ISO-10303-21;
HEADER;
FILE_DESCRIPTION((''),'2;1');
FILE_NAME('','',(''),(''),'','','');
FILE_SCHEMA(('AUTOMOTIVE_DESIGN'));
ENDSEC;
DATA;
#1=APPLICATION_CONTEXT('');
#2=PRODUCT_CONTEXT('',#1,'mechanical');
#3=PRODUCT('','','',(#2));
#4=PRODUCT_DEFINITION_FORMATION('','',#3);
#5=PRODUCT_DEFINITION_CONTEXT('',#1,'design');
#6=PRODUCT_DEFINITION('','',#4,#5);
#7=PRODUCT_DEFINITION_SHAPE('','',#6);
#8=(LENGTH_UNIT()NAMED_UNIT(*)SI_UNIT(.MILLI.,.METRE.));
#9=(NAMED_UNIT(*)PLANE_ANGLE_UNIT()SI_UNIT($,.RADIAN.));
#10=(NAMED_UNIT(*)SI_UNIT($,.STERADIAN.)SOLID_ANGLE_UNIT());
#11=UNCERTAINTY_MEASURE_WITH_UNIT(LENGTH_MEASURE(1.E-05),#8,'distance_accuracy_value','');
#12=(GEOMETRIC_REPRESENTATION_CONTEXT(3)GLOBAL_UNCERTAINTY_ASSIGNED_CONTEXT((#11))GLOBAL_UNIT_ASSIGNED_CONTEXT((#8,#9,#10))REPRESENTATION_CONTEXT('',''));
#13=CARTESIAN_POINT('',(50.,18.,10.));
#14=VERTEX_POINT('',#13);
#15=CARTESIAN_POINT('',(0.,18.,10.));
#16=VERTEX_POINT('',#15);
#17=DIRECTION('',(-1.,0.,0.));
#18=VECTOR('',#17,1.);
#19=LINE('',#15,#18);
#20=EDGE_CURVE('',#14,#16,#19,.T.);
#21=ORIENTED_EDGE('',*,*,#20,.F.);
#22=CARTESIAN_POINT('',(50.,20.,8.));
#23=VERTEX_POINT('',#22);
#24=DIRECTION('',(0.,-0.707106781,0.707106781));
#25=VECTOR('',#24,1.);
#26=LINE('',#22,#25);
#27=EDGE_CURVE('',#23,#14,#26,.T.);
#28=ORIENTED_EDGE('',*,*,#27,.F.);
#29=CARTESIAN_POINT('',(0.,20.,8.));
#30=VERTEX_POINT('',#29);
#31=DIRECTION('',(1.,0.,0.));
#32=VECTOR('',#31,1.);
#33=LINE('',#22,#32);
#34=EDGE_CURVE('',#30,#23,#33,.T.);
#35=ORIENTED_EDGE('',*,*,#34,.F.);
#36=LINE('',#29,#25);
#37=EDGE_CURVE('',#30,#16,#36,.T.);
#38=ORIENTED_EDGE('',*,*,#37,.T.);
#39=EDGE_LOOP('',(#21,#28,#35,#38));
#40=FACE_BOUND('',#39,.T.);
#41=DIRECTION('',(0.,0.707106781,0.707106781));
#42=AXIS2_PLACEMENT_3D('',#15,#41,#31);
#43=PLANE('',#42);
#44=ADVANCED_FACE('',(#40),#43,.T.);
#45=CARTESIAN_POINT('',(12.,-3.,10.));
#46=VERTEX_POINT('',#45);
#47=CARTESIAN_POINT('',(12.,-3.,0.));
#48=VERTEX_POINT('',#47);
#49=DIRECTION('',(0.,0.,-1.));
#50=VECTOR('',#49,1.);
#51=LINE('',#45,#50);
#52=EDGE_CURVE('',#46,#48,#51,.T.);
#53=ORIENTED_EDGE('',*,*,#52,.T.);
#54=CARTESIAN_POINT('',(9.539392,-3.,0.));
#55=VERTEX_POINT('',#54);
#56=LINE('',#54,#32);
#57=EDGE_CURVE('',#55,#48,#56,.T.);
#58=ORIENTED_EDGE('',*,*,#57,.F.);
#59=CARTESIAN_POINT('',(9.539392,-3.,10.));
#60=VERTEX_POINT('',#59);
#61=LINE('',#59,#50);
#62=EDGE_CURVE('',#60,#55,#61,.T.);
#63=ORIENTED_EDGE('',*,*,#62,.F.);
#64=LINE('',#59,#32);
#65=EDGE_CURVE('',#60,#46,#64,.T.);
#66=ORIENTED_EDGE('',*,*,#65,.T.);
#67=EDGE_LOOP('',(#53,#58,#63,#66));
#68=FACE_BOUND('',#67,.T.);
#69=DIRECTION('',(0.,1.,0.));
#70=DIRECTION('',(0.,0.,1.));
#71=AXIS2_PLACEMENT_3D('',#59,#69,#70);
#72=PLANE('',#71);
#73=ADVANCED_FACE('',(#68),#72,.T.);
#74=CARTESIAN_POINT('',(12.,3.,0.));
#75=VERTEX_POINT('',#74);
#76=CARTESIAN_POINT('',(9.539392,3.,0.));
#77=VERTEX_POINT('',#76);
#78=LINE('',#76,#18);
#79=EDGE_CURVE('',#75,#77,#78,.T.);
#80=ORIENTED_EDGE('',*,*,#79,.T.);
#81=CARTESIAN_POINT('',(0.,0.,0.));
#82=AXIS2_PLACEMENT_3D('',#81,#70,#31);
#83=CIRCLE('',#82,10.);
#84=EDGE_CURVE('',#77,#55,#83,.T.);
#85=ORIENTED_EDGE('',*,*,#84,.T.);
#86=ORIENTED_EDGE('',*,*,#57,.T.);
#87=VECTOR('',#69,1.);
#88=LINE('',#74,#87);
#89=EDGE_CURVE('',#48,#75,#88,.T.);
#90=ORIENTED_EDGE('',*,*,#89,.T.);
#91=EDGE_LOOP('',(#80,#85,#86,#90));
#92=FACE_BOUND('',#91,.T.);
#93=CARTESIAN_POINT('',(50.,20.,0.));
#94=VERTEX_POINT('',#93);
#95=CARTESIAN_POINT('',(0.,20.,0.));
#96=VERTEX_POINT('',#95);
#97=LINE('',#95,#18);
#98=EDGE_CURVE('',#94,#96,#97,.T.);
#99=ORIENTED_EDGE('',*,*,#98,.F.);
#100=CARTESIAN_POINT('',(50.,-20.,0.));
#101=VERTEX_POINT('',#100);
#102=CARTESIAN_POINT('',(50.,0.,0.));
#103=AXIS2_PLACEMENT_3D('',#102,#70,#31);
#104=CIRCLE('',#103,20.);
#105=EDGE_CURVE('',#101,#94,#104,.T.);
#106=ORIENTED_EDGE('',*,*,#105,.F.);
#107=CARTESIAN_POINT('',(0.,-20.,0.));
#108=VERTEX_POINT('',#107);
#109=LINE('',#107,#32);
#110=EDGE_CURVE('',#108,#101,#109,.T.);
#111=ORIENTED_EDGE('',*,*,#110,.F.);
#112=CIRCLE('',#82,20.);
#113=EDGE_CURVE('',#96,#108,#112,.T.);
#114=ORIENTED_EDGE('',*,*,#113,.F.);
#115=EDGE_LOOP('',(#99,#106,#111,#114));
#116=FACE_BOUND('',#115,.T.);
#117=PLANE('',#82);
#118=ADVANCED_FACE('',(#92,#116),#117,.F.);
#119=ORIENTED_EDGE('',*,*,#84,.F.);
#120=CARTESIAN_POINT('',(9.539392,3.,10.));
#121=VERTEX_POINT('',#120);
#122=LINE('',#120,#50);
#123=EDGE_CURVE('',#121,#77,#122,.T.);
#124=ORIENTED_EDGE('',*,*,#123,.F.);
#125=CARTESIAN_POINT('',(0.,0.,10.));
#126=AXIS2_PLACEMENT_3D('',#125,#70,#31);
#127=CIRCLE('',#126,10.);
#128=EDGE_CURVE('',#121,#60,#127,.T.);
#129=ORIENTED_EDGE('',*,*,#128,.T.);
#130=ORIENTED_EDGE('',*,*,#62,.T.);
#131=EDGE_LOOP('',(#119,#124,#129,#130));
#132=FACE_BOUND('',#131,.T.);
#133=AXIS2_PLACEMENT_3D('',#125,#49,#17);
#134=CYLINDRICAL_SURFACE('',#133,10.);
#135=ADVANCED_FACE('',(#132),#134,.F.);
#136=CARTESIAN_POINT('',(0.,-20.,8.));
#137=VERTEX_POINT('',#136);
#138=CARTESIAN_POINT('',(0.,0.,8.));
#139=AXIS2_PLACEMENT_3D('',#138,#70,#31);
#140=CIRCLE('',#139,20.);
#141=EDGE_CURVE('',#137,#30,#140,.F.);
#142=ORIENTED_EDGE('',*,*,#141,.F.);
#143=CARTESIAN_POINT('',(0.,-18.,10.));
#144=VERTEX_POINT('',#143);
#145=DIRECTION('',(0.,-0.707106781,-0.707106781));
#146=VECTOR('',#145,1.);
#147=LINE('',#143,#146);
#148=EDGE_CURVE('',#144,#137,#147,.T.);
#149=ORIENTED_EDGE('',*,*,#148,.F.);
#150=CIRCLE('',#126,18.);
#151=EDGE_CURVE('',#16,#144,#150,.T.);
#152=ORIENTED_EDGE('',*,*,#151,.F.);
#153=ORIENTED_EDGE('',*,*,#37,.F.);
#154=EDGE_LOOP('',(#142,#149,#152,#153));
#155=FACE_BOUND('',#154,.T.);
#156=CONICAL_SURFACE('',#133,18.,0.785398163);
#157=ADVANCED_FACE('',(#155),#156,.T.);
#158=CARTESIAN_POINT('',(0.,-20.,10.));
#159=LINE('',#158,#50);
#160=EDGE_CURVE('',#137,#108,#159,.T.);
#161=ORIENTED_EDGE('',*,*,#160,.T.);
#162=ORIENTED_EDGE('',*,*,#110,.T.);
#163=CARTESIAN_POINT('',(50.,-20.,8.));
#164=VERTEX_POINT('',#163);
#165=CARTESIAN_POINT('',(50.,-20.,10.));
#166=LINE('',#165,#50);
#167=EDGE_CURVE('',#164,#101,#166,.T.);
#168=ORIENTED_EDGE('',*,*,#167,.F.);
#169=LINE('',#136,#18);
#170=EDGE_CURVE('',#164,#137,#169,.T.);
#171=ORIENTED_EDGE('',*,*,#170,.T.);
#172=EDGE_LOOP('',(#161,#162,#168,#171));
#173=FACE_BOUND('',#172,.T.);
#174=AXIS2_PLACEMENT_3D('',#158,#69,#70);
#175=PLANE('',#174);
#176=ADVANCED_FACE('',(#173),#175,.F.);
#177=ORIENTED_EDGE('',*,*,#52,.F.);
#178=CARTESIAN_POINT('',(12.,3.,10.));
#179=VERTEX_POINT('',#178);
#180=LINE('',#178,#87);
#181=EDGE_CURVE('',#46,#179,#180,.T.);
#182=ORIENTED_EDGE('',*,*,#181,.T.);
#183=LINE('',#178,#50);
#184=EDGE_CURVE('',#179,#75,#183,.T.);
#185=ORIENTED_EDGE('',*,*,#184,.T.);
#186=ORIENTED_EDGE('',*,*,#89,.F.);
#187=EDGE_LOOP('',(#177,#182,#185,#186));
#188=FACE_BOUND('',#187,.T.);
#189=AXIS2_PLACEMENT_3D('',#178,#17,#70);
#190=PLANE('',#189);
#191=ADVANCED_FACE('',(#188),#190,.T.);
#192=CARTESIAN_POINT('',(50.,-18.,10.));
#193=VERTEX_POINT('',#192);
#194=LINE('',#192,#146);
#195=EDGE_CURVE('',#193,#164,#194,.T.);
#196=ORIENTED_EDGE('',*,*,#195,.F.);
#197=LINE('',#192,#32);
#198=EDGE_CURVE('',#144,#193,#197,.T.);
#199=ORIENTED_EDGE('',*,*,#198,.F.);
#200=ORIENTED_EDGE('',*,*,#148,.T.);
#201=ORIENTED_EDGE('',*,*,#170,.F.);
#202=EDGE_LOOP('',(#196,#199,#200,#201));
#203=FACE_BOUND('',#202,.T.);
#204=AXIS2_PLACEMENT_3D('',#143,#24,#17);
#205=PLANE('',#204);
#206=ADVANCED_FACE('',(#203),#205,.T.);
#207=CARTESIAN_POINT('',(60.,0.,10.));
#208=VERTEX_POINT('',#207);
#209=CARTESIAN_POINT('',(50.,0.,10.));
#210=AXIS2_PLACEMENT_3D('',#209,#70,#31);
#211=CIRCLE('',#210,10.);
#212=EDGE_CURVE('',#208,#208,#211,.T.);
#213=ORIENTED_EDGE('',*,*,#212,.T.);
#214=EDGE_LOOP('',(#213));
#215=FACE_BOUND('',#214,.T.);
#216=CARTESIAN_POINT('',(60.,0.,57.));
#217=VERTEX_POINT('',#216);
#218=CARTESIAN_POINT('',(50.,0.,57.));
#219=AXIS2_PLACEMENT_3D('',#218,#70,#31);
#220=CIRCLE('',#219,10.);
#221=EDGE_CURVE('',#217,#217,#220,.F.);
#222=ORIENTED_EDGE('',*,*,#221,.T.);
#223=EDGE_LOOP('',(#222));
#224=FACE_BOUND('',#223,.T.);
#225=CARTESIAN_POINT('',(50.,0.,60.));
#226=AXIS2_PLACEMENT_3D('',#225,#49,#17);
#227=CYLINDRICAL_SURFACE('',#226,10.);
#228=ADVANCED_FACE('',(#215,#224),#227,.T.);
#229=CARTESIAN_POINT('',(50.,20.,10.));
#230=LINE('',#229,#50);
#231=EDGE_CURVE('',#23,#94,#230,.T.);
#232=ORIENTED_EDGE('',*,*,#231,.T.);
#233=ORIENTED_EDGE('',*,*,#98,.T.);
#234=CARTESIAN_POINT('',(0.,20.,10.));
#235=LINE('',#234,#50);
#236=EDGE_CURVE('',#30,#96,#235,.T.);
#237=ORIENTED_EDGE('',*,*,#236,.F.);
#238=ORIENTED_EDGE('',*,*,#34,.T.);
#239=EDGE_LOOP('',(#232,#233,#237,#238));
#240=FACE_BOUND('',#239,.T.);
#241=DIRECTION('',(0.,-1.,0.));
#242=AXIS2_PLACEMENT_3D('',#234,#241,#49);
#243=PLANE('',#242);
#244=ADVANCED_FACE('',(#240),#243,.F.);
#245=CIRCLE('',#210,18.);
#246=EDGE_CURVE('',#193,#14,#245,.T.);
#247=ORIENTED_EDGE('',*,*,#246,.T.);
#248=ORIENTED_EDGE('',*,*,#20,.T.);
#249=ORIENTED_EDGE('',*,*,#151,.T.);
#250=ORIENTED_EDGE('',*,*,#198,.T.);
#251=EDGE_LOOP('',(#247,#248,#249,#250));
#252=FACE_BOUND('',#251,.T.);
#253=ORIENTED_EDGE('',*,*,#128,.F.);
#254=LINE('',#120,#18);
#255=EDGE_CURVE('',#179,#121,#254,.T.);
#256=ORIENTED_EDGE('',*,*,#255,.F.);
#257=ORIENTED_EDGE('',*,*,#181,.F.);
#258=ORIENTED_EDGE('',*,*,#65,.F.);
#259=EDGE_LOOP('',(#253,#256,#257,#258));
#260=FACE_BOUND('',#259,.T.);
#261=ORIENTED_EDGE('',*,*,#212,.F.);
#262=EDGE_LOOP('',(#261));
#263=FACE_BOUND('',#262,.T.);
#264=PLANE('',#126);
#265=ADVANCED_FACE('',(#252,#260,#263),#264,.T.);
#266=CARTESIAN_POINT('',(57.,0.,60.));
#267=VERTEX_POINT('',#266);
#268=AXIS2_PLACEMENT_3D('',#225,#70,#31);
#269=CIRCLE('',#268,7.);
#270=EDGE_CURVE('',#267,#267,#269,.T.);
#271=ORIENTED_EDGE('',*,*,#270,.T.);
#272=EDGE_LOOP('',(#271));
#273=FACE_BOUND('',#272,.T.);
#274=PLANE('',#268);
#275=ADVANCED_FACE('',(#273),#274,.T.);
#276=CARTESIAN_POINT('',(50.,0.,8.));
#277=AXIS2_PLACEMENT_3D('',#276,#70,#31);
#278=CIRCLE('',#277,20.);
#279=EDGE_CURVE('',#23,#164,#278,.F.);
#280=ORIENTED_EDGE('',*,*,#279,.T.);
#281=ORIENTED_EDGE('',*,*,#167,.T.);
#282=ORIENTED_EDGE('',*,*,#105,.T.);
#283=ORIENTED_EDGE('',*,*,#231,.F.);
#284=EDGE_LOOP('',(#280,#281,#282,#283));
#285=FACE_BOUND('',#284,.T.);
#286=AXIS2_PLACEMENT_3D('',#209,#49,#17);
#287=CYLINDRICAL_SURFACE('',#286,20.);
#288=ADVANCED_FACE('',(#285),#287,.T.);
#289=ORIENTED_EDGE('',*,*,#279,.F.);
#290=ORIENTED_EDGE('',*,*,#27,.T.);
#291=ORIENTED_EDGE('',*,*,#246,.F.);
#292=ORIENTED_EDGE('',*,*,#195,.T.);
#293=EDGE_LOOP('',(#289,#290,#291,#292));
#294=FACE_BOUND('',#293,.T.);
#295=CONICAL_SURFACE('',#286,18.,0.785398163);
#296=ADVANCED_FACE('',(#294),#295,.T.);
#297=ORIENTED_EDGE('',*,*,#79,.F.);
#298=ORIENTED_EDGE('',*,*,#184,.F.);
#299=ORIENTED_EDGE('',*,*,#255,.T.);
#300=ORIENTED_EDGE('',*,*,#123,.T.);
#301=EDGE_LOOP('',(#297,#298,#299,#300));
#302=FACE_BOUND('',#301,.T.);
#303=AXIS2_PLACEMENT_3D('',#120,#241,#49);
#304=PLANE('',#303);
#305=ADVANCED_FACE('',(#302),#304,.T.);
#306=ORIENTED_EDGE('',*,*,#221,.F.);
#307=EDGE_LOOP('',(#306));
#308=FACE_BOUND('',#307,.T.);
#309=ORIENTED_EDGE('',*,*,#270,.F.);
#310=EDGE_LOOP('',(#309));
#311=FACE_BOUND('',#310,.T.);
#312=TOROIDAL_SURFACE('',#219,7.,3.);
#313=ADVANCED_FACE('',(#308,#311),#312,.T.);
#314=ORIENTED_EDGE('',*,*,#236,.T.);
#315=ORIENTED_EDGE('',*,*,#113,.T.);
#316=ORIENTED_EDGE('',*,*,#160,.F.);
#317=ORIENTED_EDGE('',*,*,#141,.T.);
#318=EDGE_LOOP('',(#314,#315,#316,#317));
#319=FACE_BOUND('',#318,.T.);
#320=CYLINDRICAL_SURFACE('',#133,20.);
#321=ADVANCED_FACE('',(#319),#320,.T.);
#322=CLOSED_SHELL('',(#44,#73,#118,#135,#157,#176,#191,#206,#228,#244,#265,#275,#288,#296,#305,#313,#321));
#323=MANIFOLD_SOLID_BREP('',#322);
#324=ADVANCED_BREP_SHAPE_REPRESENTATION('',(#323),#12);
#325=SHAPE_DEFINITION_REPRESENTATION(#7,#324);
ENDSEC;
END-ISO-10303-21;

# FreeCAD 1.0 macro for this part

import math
import FreeCAD as App
import Part
import Sketcher
Q = App.Units.Quantity


def edges_at(feature, points):
    """Names of the edges that pass closest to the given points."""
    edges = feature.Shape.Edges
    near = lambda p: min(range(len(edges)), key=lambda i: edges[i].distToShape(Part.Vertex(*p))[0])
    return sorted({f"Edge{near(p) + 1}" for p in points})

doc = App.newDocument("Part")
body = doc.addObject("PartDesign::Body", "Body")

sketch1 = body.newObject("Sketcher::SketchObject", "Sketch")
sketch1.AttachmentSupport = (doc.getObject("XY_Plane"), [""])
sketch1.MapMode = "FlatFace"
sketch1.addGeometry([
    Part.LineSegment(App.Vector(50, 20, 0), App.Vector(0, 20, 0)),
    Part.ArcOfCircle(Part.Circle(App.Vector(0, 0, 0), App.Vector(0, 0, 1), 20), math.radians(90), math.radians(270)),
    Part.LineSegment(App.Vector(0, -20, 0), App.Vector(50, -20, 0)),
    Part.ArcOfCircle(Part.Circle(App.Vector(50, 0, 0), App.Vector(0, 0, 1), 20), math.radians(-90), math.radians(90)),
    Part.LineSegment(App.Vector(9.5, 3, 0), App.Vector(12, 3, 0)),
    Part.LineSegment(App.Vector(12, 3, 0), App.Vector(12, -3, 0)),
    Part.LineSegment(App.Vector(12, -3, 0), App.Vector(9.5, -3, 0)),
    Part.ArcOfCircle(Part.Circle(App.Vector(0, 0, 0), App.Vector(0, 0, 1), 10), math.radians(17), math.radians(343)),
], False)
sketch1.addConstraint([
    Sketcher.Constraint("Tangent", 0, 2, 1, 1),
    Sketcher.Constraint("Tangent", 1, 2, 2, 1),
    Sketcher.Constraint("Tangent", 2, 2, 3, 1),
    Sketcher.Constraint("Tangent", 3, 2, 0, 1),
    Sketcher.Constraint("Coincident", 4, 2, 5, 1),
    Sketcher.Constraint("Coincident", 5, 2, 6, 1),
    Sketcher.Constraint("Coincident", 6, 2, 7, 2),
    Sketcher.Constraint("Coincident", 7, 1, 4, 1),
    Sketcher.Constraint("Horizontal", 0),
    Sketcher.Constraint("Horizontal", 2),
    Sketcher.Constraint("Horizontal", 4),
    Sketcher.Constraint("Vertical", 5),
    Sketcher.Constraint("Horizontal", 6),
    Sketcher.Constraint("Coincident", 1, 3, -1, 1),
    Sketcher.Constraint("Coincident", 7, 3, -1, 1),
    Sketcher.Constraint("Vertical", 6, 2, 7, 1),
    Sketcher.Constraint("Radius", 1, Q("20 mm")),
    Sketcher.Constraint("Radius", 7, Q("10 mm")),
    Sketcher.Constraint("DistanceX", 0, 2, 0, 1, Q("50 mm")),
    Sketcher.Constraint("DistanceY", 5, 2, 5, 1, Q("6 mm")),
    Sketcher.Constraint("DistanceX", -1, 1, 4, 2, Q("12 mm")),
])
pad1 = body.newObject("PartDesign::Pad", "Pad")
pad1.Profile = sketch1
pad1.Length = 10

sketch2 = body.newObject("Sketcher::SketchObject", "Sketch001")
sketch2.AttachmentSupport = (doc.getObject("XY_Plane"), [""])
sketch2.MapMode = "FlatFace"
sketch2.AttachmentOffset = App.Placement(App.Vector(0, 0, 10), App.Rotation())
sketch2.addGeometry(Part.Circle(App.Vector(50, 0, 0), App.Vector(0, 0, 1), 10), False)
sketch2.addConstraint([
    Sketcher.Constraint("PointOnObject", 0, 3, -1),
    Sketcher.Constraint("Diameter", 0, Q("20 mm")),
    Sketcher.Constraint("DistanceX", -1, 1, 0, 3, Q("50 mm")),
])
pad2 = body.newObject("PartDesign::Pad", "Pad001")
pad2.Profile = sketch2
pad2.Length = 50
doc.recompute()

fillet = body.newObject("PartDesign::Fillet", "Fillet")
fillet.Base = (pad2, edges_at(pad2, [(40, 0, 60)]))
fillet.Radius = 3
doc.recompute()

chamfer = body.newObject("PartDesign::Chamfer", "Chamfer")
chamfer.Base = (fillet, edges_at(fillet, [
    (70, 0, 10),
    (25, 20, 10),
    (-20, 0, 10),
    (25, -20, 10),
]))
chamfer.Size = 2

doc.recompute()
